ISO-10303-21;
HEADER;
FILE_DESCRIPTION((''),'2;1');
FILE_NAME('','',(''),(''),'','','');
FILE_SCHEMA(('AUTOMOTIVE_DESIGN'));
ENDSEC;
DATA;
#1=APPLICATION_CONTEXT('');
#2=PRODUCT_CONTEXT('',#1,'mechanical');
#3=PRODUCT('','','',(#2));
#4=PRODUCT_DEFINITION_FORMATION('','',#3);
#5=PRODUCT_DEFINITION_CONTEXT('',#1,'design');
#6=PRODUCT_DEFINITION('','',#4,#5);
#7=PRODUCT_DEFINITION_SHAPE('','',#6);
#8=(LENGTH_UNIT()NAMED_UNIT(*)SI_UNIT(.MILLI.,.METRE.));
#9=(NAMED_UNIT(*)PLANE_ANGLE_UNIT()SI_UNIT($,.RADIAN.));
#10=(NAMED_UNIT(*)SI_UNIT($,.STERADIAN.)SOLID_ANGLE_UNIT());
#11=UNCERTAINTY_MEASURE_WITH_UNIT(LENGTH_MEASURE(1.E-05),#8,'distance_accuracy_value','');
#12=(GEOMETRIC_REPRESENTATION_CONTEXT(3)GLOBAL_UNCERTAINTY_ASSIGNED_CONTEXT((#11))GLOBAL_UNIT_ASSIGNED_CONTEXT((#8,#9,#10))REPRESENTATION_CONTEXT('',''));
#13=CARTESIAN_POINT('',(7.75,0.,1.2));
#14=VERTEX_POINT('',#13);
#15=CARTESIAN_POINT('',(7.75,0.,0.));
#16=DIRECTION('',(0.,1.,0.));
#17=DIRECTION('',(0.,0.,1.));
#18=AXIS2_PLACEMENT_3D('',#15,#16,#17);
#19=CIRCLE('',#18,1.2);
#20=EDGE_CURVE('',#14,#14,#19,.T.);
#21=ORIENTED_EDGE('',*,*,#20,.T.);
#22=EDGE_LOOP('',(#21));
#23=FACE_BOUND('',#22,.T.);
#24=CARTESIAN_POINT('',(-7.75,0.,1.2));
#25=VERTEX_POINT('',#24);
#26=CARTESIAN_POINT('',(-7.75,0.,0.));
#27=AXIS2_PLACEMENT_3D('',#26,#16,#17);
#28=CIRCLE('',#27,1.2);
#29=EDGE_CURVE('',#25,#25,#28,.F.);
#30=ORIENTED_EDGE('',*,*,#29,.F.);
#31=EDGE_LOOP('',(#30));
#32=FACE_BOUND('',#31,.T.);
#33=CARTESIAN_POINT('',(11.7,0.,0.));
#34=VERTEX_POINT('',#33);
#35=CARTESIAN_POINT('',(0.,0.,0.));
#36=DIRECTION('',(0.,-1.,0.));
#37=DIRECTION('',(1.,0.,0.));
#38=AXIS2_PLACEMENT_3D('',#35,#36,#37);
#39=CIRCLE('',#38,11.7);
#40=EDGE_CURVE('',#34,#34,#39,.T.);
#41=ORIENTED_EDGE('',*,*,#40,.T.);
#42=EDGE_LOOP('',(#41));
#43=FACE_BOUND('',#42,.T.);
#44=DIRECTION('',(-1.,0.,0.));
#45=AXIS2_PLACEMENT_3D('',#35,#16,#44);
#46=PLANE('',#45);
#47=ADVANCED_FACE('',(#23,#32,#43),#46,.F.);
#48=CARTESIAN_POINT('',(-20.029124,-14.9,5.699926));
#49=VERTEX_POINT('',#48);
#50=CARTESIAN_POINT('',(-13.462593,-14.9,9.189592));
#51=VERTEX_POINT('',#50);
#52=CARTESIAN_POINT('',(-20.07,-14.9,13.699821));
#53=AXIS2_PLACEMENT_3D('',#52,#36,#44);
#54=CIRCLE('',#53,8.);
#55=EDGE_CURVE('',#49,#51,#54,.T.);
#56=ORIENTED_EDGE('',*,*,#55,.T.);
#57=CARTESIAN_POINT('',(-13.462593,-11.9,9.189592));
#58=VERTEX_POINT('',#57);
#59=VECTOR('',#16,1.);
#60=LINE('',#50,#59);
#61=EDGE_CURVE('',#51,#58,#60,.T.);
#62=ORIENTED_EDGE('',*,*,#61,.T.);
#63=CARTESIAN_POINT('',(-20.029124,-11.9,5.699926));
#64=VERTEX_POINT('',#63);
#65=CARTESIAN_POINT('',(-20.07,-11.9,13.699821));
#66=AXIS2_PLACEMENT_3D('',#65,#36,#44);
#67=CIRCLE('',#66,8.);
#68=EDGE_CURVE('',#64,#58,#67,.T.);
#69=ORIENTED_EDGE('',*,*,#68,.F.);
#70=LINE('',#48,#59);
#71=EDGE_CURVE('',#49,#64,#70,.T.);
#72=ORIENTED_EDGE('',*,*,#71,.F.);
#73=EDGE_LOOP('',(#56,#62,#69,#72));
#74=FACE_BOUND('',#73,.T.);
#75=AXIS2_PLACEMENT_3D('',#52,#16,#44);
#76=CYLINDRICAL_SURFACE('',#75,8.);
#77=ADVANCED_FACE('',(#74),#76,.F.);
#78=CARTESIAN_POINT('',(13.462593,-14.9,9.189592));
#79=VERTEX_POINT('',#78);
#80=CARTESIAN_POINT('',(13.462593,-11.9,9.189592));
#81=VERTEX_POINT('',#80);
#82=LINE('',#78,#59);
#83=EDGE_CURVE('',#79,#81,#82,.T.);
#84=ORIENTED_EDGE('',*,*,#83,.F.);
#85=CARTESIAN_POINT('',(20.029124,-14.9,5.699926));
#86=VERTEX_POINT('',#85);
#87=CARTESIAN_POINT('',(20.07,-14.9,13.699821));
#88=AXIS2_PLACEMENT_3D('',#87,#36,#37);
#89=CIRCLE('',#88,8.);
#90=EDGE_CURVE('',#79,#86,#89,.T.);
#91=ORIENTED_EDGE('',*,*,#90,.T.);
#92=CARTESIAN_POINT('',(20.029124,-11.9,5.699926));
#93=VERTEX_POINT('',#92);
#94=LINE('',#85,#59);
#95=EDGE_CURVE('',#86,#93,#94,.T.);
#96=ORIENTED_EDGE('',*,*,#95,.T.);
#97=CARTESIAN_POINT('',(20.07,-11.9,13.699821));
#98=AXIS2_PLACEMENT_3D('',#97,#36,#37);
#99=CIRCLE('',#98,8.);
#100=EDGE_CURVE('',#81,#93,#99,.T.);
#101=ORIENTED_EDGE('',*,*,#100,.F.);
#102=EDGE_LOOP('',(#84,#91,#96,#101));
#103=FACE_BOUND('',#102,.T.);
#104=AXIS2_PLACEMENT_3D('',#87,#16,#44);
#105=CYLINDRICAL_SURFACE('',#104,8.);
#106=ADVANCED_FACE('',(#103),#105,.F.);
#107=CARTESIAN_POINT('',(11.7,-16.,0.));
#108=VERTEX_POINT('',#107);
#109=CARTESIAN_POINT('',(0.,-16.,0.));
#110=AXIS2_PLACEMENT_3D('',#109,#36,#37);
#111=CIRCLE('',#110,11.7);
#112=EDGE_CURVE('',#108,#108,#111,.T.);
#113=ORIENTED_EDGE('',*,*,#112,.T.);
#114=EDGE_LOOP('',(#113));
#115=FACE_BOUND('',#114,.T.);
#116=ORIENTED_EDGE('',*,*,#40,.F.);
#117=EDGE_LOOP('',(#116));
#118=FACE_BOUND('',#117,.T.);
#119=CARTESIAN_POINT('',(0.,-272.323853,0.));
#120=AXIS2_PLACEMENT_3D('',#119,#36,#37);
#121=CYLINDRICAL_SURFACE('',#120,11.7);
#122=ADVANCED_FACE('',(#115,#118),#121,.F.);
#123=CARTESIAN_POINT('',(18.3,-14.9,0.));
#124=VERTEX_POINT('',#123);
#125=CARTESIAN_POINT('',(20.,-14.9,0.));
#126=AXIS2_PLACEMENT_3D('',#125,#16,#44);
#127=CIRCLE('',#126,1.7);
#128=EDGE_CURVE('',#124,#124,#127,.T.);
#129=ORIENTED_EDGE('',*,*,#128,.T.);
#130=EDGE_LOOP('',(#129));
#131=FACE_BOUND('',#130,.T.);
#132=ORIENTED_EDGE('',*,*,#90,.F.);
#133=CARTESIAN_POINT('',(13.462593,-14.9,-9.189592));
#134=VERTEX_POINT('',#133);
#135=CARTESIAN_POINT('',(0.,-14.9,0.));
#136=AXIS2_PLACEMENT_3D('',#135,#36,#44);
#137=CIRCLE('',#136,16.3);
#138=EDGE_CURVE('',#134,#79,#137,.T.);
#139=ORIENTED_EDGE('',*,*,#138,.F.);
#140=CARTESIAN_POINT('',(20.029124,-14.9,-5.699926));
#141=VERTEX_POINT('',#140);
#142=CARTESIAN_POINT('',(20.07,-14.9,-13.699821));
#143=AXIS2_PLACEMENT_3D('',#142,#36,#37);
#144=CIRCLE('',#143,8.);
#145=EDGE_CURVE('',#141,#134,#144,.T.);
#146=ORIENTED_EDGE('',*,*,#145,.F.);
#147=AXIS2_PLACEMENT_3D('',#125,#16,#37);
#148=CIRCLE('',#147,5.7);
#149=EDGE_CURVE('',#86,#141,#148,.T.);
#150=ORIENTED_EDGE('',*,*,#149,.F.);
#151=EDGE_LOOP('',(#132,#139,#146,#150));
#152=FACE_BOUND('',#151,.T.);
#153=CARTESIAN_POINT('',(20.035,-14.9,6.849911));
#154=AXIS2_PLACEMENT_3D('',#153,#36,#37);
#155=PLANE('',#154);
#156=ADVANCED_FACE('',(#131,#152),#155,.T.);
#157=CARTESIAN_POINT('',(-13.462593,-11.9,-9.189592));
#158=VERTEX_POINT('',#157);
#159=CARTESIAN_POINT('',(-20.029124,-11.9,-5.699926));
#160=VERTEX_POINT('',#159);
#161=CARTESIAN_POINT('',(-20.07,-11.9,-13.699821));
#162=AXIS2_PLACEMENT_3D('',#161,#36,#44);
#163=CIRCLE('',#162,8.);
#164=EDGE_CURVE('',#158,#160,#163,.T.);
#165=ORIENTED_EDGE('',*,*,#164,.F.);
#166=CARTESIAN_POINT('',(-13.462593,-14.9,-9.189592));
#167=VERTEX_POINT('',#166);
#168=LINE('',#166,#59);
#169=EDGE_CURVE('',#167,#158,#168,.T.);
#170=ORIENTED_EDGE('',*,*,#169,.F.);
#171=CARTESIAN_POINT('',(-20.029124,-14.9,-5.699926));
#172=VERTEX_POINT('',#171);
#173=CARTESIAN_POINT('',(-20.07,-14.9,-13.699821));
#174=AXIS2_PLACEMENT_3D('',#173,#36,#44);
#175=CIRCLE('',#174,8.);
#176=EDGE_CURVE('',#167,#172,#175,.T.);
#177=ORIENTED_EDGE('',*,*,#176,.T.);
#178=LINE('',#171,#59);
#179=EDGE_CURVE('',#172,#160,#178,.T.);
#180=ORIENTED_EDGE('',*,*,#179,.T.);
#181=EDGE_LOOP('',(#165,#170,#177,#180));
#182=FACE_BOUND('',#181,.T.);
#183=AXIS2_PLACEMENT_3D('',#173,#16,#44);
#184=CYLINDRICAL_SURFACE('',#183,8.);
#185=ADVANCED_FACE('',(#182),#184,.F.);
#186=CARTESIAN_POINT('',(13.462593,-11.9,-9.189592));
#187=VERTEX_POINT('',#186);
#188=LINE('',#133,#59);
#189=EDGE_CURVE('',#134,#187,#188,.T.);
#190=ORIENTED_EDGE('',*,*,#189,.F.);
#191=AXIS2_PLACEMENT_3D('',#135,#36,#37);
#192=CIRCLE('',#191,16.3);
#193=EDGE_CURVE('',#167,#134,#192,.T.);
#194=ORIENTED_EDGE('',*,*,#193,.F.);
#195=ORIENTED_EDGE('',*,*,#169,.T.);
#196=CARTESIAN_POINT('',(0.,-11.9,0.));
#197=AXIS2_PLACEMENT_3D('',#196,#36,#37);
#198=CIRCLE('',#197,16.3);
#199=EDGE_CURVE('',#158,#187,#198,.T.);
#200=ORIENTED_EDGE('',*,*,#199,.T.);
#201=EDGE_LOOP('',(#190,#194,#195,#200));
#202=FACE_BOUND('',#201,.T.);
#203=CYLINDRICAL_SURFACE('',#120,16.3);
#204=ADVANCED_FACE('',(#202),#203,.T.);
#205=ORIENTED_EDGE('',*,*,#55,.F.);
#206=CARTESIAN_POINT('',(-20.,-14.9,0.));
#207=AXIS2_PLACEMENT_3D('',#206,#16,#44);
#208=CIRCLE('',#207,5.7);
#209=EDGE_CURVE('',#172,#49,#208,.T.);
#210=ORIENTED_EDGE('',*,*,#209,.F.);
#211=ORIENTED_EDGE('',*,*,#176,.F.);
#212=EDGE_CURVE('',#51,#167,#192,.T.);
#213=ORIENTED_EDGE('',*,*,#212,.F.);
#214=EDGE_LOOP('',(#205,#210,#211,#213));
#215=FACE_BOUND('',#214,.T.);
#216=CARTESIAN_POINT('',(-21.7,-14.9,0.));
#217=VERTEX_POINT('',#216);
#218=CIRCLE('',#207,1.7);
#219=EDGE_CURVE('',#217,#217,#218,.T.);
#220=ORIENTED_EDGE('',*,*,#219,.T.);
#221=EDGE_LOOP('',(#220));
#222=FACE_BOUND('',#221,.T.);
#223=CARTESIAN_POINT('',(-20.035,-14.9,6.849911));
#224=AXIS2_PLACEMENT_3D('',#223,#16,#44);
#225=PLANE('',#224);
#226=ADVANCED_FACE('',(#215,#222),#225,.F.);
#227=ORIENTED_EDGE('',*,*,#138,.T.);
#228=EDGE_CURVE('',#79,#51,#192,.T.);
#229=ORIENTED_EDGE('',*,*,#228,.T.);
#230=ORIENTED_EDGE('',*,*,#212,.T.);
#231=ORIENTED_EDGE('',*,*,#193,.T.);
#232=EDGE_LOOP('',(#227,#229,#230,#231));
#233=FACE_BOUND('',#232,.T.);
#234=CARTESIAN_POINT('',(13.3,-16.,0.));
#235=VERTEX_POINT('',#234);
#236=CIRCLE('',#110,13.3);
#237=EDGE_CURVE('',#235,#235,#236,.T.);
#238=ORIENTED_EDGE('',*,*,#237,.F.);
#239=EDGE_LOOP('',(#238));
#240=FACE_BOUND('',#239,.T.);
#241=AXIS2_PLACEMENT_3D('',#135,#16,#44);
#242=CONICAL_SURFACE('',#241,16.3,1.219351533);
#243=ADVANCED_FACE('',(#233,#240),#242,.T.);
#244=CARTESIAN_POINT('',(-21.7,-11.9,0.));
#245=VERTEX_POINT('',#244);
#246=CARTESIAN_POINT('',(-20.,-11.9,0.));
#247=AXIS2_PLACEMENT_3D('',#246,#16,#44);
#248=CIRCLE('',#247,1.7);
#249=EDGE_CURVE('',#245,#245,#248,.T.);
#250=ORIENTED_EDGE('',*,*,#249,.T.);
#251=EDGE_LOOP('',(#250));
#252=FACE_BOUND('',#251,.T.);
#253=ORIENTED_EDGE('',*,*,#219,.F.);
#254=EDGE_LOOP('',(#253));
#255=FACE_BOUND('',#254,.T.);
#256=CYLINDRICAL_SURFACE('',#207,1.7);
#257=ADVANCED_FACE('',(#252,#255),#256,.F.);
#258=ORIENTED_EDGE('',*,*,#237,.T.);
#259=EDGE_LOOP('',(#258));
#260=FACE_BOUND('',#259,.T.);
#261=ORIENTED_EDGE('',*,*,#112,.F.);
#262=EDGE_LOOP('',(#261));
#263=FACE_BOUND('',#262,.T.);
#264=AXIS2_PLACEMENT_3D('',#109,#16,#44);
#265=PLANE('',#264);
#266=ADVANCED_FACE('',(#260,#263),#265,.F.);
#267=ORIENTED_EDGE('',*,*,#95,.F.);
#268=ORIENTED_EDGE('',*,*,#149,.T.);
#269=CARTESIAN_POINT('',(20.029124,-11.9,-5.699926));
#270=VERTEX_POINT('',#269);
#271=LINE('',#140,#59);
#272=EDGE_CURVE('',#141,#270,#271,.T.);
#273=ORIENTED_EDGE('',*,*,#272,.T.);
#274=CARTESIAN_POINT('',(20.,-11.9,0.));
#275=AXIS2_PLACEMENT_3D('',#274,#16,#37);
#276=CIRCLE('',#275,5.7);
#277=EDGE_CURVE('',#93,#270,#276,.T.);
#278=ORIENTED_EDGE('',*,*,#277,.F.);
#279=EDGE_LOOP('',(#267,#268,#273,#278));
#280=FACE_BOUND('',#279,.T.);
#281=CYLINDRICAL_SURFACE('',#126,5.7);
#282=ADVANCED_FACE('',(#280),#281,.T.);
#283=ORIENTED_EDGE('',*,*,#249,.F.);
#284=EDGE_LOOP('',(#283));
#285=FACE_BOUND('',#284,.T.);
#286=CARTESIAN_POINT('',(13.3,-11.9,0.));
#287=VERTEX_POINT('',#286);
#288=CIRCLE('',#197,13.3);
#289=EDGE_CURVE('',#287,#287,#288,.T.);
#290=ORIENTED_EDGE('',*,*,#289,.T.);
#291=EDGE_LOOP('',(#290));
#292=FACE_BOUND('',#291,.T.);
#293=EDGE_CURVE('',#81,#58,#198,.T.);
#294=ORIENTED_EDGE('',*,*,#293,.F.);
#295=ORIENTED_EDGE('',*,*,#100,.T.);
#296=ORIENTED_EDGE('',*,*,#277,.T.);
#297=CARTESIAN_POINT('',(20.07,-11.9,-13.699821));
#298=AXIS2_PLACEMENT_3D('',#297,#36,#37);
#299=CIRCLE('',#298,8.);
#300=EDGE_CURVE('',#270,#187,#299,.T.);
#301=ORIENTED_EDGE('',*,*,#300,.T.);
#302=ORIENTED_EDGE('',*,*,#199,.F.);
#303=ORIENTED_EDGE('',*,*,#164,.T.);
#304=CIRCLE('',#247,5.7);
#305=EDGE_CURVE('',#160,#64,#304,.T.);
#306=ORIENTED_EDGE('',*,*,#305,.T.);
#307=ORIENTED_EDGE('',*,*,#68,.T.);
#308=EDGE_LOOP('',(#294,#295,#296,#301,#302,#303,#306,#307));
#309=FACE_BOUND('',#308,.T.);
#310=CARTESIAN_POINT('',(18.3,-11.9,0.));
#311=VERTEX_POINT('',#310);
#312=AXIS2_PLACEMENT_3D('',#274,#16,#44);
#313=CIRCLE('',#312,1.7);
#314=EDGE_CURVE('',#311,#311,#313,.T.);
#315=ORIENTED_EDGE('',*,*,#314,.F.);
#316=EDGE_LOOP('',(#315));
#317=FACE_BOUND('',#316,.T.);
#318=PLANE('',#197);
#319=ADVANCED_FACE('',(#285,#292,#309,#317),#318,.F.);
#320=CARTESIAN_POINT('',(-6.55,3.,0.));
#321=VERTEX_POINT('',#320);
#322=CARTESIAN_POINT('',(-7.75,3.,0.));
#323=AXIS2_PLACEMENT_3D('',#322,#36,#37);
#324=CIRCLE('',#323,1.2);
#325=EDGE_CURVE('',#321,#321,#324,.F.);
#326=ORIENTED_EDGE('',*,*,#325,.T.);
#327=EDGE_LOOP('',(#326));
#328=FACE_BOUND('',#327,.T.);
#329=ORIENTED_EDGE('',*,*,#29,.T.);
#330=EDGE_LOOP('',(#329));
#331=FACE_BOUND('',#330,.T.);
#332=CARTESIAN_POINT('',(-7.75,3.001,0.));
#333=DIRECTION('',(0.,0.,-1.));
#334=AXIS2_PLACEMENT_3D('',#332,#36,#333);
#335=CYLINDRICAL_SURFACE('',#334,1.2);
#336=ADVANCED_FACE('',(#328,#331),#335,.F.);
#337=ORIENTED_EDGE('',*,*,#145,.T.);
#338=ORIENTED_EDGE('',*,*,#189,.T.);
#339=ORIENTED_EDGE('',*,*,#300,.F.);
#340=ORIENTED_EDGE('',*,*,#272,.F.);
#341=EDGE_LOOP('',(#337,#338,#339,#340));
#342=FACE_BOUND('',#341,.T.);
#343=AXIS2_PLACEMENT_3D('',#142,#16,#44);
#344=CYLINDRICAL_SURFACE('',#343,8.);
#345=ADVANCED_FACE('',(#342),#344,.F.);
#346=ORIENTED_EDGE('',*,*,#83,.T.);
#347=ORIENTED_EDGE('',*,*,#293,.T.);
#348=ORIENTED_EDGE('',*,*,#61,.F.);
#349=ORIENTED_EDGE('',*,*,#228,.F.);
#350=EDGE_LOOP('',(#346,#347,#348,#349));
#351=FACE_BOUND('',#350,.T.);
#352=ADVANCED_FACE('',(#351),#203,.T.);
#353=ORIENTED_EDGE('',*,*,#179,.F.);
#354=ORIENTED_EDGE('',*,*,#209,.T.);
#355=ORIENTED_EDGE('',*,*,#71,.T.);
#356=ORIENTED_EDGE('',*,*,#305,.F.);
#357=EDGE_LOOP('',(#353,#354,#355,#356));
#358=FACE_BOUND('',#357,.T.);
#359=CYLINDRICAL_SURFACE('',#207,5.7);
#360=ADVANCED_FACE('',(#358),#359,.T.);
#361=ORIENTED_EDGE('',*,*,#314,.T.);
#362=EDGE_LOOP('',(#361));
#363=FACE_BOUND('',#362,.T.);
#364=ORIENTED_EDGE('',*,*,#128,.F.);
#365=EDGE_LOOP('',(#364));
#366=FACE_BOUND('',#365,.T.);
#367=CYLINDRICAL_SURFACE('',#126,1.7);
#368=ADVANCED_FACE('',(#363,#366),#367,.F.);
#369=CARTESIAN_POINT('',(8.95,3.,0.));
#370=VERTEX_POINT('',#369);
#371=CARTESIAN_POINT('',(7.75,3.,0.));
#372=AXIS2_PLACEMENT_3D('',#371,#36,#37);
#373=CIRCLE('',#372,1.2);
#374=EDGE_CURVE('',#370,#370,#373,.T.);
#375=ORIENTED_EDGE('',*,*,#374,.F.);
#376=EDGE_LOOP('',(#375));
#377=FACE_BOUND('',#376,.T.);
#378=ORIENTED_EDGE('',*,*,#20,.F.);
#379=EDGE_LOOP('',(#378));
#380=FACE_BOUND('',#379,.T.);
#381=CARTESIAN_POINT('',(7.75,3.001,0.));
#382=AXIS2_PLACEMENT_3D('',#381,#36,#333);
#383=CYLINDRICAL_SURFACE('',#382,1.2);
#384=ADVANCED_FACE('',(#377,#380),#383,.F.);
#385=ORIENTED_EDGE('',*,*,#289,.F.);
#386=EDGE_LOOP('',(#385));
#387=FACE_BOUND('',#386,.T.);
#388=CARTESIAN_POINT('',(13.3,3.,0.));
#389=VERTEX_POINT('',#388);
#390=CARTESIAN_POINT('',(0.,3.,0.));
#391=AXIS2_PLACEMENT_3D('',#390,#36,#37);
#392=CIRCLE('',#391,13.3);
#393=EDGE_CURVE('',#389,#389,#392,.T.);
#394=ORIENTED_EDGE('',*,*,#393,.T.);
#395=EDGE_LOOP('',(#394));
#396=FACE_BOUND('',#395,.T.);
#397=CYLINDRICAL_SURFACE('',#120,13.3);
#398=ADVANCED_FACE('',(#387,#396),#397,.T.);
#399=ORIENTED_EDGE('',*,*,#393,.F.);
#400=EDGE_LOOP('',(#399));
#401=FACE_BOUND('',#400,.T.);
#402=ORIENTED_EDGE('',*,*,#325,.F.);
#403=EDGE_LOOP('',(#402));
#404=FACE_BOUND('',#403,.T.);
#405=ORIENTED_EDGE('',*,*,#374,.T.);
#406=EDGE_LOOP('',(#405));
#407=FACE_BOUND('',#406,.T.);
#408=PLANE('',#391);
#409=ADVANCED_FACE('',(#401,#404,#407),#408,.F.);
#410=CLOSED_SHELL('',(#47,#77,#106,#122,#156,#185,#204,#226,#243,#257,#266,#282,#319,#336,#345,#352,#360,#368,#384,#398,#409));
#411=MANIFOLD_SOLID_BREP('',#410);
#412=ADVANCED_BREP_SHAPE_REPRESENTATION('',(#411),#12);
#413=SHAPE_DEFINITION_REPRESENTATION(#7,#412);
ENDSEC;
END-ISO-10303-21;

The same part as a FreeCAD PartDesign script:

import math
import FreeCAD as App
import Part
import Sketcher
Q = App.Units.Quantity


def add_polygon(sketch, points):
    """Adds a closed chain of lines whose ends are joined by coincident constraints."""
    first, n = sketch.GeometryCount, len(points)
    for a, b in zip(points, points[1:] + points[:1]):
        sketch.addGeometry(Part.LineSegment(App.Vector(*a, 0), App.Vector(*b, 0)), False)
    for i in range(n):
        sketch.addConstraint(Sketcher.Constraint("Coincident", first + i, 2, first + (i + 1) % n, 1))

doc = App.newDocument("Part")
body = doc.addObject("PartDesign::Body", "Body")

# Sketch on XY plane
sketch1 = doc.addObject("Sketcher::SketchObject", "Sketch")
body.addObject(sketch1)
sketch1.AttachmentSupport = (doc.XY_Plane, [""])
sketch1.MapMode = "FlatFace"
add_polygon(sketch1, [(0, 0), (11.7, 0), (11.7, -16), (13.3, -16), (16.3, -14.9), (16.3, -11.9), (13.3, -11.9), (13.3, 3), (0, 3)])  # lines 0-8
sketch1.addConstraint(Sketcher.Constraint("Horizontal", 0))
sketch1.addConstraint(Sketcher.Constraint("Vertical", 1))
sketch1.addConstraint(Sketcher.Constraint("Horizontal", 2))
sketch1.addConstraint(Sketcher.Constraint("Vertical", 4))
sketch1.addConstraint(Sketcher.Constraint("Horizontal", 5))
sketch1.addConstraint(Sketcher.Constraint("Vertical", 6))
sketch1.addConstraint(Sketcher.Constraint("Horizontal", 7))
sketch1.addConstraint(Sketcher.Constraint("Vertical", 8))
sketch1.addConstraint(Sketcher.Constraint("Coincident", 8, 2, -1, 1))
sketch1.addConstraint(Sketcher.Constraint("Vertical", 2, 2, 5, 2))
sketch1.addConstraint(Sketcher.Constraint("Equal", 5, 4))
sketch1.addConstraint(Sketcher.Constraint("Equal", 4, 8))
sketch1.addConstraint(Sketcher.Constraint("DistanceX", 5, 2, 5, 1, Q("3 mm")))
sketch1.addConstraint(Sketcher.Constraint("DistanceY", 1, 2, 1, 1, Q("16 mm")))
sketch1.addConstraint(Sketcher.Constraint("DistanceX", 0, 1, 0, 2, Q("11.7 mm")))
sketch1.addConstraint(Sketcher.Constraint("DistanceX", 2, 1, 2, 2, Q("1.6 mm")))
sketch1.addConstraint(Sketcher.Constraint("DistanceY", 6, 1, 6, 2, Q("14.9 mm")))
revolution = doc.addObject("PartDesign::Revolution", "Revolution")
body.addObject(revolution)
revolution.Profile = sketch1
revolution.ReferenceAxis = (sketch1, ["V_Axis"])
revolution.Angle = 360

# Sketch on XZ plane
sketch2 = doc.addObject("Sketcher::SketchObject", "Sketch001")
body.addObject(sketch2)
sketch2.AttachmentSupport = (doc.XZ_Plane, [""])
sketch2.MapMode = "FlatFace"
sketch2.AttachmentOffset = App.Placement(App.Vector(0, 0, 11.9), App.Rotation())
sketch2.addGeometry(Part.ArcOfCircle(Part.Circle(App.Vector(-20, 0, 0), App.Vector(0, 0, 1), 5.7), math.radians(90), math.radians(270)), False)
sketch2.addGeometry(Part.ArcOfCircle(Part.Circle(App.Vector(-20.1, 13.7, 0), App.Vector(0, 0, 1), 8), math.radians(-90), math.radians(-34)), False)
sketch2.addGeometry(Part.ArcOfCircle(Part.Circle(App.Vector(0, 0, 0), App.Vector(0, 0, 1), 16.3), math.radians(146), math.radians(214)), False)
sketch2.addGeometry(Part.ArcOfCircle(Part.Circle(App.Vector(-20.1, -13.7, 0), App.Vector(0, 0, 1), 8), math.radians(34), math.radians(90)), False)
sketch2.addGeometry(Part.Circle(App.Vector(-20, 0, 0), App.Vector(0, 0, 1), 1.7), False)
sketch2.addGeometry(Part.ArcOfCircle(Part.Circle(App.Vector(0, 0, 0), App.Vector(0, 0, 1), 16.3), math.radians(-34), math.radians(34)), False)
sketch2.addGeometry(Part.ArcOfCircle(Part.Circle(App.Vector(20.1, 13.7, 0), App.Vector(0, 0, 1), 8), math.radians(-146), math.radians(-90)), False)
sketch2.addGeometry(Part.ArcOfCircle(Part.Circle(App.Vector(20, 0, 0), App.Vector(0, 0, 1), 5.7), math.radians(-90), math.radians(90)), False)
sketch2.addGeometry(Part.ArcOfCircle(Part.Circle(App.Vector(20.1, -13.7, 0), App.Vector(0, 0, 1), 8), math.radians(90), math.radians(146)), False)
sketch2.addGeometry(Part.Circle(App.Vector(20, 0, 0), App.Vector(0, 0, 1), 1.7), False)
sketch2.addConstraint(Sketcher.Constraint("Tangent", 0, 1, 1, 1))
sketch2.addConstraint(Sketcher.Constraint("Tangent", 1, 2, 2, 1))
sketch2.addConstraint(Sketcher.Constraint("Tangent", 2, 2, 3, 1))
sketch2.addConstraint(Sketcher.Constraint("Tangent", 3, 2, 0, 2))
sketch2.addConstraint(Sketcher.Constraint("Tangent", 5, 2, 6, 1))
sketch2.addConstraint(Sketcher.Constraint("Tangent", 6, 2, 7, 2))
sketch2.addConstraint(Sketcher.Constraint("Tangent", 7, 1, 8, 1))
sketch2.addConstraint(Sketcher.Constraint("Tangent", 8, 2, 5, 1))
sketch2.addConstraint(Sketcher.Constraint("Coincident", 2, 3, -1, 1))
sketch2.addConstraint(Sketcher.Constraint("Coincident", 5, 3, -1, 1))
sketch2.addConstraint(Sketcher.Constraint("Coincident", 4, 3, 0, 3))
sketch2.addConstraint(Sketcher.Constraint("Coincident", 9, 3, 7, 3))
sketch2.addConstraint(Sketcher.Constraint("Equal", 1, 3))
sketch2.addConstraint(Sketcher.Constraint("Equal", 2, 5))
sketch2.addConstraint(Sketcher.Constraint("Equal", 3, 6))
sketch2.addConstraint(Sketcher.Constraint("Equal", 0, 7))
sketch2.addConstraint(Sketcher.Constraint("Equal", 6, 8))
sketch2.addConstraint(Sketcher.Constraint("Equal", 4, 9))
sketch2.addConstraint(Sketcher.Constraint("Symmetric", 0, 3, 7, 3, -1, 1))
sketch2.addConstraint(Sketcher.Constraint("PointOnObject", 0, 3, -1))
sketch2.addConstraint(Sketcher.Constraint("Radius", 1, Q("8 mm")))
sketch2.addConstraint(Sketcher.Constraint("Diameter", 4, Q("3.4 mm")))
sketch2.addConstraint(Sketcher.Constraint("Radius", 0, Q("5.7 mm")))
sketch2.addConstraint(Sketcher.Constraint("Radius", 2, Q("16.3 mm")))
sketch2.addConstraint(Sketcher.Constraint("DistanceX", 0, 3, -1, 1, Q("20 mm")))
pad1 = doc.addObject("PartDesign::Pad", "Pad")
body.addObject(pad1)
pad1.Profile = sketch2
pad1.Length = 3

# Sketch on XZ plane
sketch3 = doc.addObject("Sketcher::SketchObject", "Sketch002")
body.addObject(sketch3)
sketch3.AttachmentSupport = (doc.XZ_Plane, [""])
sketch3.MapMode = "FlatFace"
sketch3.addGeometry(Part.Circle(App.Vector(7.8, 0, 0), App.Vector(0, 0, 1), 1.2), False)
sketch3.addConstraint(Sketcher.Constraint("PointOnObject", 0, 3, -1))
sketch3.addConstraint(Sketcher.Constraint("Diameter", 0, Q("2.4 mm")))
sketch3.addConstraint(Sketcher.Constraint("DistanceX", -1, 1, 0, 3, Q("7.75 mm")))
pocket1 = doc.addObject("PartDesign::Pocket", "Pocket")
body.addObject(pocket1)
pocket1.Profile = sketch3
pocket1.Type = "UpToFirst"

# Sketch on XZ plane
sketch4 = doc.addObject("Sketcher::SketchObject", "Sketch003")
body.addObject(sketch4)
sketch4.AttachmentSupport = (doc.XZ_Plane, [""])
sketch4.MapMode = "FlatFace"
sketch4.addGeometry(Part.Circle(App.Vector(-7.8, 0, 0), App.Vector(0, 0, 1), 1.2), False)
sketch4.addConstraint(Sketcher.Constraint("PointOnObject", 0, 3, -1))
sketch4.addConstraint(Sketcher.Constraint("Diameter", 0, Q("2.4 mm")))
sketch4.addConstraint(Sketcher.Constraint("DistanceX", 0, 3, -1, 1, Q("7.75 mm")))
pocket2 = doc.addObject("PartDesign::Pocket", "Pocket001")
body.addObject(pocket2)
pocket2.Profile = sketch4
pocket2.Type = "UpToFirst"

doc.recompute()
